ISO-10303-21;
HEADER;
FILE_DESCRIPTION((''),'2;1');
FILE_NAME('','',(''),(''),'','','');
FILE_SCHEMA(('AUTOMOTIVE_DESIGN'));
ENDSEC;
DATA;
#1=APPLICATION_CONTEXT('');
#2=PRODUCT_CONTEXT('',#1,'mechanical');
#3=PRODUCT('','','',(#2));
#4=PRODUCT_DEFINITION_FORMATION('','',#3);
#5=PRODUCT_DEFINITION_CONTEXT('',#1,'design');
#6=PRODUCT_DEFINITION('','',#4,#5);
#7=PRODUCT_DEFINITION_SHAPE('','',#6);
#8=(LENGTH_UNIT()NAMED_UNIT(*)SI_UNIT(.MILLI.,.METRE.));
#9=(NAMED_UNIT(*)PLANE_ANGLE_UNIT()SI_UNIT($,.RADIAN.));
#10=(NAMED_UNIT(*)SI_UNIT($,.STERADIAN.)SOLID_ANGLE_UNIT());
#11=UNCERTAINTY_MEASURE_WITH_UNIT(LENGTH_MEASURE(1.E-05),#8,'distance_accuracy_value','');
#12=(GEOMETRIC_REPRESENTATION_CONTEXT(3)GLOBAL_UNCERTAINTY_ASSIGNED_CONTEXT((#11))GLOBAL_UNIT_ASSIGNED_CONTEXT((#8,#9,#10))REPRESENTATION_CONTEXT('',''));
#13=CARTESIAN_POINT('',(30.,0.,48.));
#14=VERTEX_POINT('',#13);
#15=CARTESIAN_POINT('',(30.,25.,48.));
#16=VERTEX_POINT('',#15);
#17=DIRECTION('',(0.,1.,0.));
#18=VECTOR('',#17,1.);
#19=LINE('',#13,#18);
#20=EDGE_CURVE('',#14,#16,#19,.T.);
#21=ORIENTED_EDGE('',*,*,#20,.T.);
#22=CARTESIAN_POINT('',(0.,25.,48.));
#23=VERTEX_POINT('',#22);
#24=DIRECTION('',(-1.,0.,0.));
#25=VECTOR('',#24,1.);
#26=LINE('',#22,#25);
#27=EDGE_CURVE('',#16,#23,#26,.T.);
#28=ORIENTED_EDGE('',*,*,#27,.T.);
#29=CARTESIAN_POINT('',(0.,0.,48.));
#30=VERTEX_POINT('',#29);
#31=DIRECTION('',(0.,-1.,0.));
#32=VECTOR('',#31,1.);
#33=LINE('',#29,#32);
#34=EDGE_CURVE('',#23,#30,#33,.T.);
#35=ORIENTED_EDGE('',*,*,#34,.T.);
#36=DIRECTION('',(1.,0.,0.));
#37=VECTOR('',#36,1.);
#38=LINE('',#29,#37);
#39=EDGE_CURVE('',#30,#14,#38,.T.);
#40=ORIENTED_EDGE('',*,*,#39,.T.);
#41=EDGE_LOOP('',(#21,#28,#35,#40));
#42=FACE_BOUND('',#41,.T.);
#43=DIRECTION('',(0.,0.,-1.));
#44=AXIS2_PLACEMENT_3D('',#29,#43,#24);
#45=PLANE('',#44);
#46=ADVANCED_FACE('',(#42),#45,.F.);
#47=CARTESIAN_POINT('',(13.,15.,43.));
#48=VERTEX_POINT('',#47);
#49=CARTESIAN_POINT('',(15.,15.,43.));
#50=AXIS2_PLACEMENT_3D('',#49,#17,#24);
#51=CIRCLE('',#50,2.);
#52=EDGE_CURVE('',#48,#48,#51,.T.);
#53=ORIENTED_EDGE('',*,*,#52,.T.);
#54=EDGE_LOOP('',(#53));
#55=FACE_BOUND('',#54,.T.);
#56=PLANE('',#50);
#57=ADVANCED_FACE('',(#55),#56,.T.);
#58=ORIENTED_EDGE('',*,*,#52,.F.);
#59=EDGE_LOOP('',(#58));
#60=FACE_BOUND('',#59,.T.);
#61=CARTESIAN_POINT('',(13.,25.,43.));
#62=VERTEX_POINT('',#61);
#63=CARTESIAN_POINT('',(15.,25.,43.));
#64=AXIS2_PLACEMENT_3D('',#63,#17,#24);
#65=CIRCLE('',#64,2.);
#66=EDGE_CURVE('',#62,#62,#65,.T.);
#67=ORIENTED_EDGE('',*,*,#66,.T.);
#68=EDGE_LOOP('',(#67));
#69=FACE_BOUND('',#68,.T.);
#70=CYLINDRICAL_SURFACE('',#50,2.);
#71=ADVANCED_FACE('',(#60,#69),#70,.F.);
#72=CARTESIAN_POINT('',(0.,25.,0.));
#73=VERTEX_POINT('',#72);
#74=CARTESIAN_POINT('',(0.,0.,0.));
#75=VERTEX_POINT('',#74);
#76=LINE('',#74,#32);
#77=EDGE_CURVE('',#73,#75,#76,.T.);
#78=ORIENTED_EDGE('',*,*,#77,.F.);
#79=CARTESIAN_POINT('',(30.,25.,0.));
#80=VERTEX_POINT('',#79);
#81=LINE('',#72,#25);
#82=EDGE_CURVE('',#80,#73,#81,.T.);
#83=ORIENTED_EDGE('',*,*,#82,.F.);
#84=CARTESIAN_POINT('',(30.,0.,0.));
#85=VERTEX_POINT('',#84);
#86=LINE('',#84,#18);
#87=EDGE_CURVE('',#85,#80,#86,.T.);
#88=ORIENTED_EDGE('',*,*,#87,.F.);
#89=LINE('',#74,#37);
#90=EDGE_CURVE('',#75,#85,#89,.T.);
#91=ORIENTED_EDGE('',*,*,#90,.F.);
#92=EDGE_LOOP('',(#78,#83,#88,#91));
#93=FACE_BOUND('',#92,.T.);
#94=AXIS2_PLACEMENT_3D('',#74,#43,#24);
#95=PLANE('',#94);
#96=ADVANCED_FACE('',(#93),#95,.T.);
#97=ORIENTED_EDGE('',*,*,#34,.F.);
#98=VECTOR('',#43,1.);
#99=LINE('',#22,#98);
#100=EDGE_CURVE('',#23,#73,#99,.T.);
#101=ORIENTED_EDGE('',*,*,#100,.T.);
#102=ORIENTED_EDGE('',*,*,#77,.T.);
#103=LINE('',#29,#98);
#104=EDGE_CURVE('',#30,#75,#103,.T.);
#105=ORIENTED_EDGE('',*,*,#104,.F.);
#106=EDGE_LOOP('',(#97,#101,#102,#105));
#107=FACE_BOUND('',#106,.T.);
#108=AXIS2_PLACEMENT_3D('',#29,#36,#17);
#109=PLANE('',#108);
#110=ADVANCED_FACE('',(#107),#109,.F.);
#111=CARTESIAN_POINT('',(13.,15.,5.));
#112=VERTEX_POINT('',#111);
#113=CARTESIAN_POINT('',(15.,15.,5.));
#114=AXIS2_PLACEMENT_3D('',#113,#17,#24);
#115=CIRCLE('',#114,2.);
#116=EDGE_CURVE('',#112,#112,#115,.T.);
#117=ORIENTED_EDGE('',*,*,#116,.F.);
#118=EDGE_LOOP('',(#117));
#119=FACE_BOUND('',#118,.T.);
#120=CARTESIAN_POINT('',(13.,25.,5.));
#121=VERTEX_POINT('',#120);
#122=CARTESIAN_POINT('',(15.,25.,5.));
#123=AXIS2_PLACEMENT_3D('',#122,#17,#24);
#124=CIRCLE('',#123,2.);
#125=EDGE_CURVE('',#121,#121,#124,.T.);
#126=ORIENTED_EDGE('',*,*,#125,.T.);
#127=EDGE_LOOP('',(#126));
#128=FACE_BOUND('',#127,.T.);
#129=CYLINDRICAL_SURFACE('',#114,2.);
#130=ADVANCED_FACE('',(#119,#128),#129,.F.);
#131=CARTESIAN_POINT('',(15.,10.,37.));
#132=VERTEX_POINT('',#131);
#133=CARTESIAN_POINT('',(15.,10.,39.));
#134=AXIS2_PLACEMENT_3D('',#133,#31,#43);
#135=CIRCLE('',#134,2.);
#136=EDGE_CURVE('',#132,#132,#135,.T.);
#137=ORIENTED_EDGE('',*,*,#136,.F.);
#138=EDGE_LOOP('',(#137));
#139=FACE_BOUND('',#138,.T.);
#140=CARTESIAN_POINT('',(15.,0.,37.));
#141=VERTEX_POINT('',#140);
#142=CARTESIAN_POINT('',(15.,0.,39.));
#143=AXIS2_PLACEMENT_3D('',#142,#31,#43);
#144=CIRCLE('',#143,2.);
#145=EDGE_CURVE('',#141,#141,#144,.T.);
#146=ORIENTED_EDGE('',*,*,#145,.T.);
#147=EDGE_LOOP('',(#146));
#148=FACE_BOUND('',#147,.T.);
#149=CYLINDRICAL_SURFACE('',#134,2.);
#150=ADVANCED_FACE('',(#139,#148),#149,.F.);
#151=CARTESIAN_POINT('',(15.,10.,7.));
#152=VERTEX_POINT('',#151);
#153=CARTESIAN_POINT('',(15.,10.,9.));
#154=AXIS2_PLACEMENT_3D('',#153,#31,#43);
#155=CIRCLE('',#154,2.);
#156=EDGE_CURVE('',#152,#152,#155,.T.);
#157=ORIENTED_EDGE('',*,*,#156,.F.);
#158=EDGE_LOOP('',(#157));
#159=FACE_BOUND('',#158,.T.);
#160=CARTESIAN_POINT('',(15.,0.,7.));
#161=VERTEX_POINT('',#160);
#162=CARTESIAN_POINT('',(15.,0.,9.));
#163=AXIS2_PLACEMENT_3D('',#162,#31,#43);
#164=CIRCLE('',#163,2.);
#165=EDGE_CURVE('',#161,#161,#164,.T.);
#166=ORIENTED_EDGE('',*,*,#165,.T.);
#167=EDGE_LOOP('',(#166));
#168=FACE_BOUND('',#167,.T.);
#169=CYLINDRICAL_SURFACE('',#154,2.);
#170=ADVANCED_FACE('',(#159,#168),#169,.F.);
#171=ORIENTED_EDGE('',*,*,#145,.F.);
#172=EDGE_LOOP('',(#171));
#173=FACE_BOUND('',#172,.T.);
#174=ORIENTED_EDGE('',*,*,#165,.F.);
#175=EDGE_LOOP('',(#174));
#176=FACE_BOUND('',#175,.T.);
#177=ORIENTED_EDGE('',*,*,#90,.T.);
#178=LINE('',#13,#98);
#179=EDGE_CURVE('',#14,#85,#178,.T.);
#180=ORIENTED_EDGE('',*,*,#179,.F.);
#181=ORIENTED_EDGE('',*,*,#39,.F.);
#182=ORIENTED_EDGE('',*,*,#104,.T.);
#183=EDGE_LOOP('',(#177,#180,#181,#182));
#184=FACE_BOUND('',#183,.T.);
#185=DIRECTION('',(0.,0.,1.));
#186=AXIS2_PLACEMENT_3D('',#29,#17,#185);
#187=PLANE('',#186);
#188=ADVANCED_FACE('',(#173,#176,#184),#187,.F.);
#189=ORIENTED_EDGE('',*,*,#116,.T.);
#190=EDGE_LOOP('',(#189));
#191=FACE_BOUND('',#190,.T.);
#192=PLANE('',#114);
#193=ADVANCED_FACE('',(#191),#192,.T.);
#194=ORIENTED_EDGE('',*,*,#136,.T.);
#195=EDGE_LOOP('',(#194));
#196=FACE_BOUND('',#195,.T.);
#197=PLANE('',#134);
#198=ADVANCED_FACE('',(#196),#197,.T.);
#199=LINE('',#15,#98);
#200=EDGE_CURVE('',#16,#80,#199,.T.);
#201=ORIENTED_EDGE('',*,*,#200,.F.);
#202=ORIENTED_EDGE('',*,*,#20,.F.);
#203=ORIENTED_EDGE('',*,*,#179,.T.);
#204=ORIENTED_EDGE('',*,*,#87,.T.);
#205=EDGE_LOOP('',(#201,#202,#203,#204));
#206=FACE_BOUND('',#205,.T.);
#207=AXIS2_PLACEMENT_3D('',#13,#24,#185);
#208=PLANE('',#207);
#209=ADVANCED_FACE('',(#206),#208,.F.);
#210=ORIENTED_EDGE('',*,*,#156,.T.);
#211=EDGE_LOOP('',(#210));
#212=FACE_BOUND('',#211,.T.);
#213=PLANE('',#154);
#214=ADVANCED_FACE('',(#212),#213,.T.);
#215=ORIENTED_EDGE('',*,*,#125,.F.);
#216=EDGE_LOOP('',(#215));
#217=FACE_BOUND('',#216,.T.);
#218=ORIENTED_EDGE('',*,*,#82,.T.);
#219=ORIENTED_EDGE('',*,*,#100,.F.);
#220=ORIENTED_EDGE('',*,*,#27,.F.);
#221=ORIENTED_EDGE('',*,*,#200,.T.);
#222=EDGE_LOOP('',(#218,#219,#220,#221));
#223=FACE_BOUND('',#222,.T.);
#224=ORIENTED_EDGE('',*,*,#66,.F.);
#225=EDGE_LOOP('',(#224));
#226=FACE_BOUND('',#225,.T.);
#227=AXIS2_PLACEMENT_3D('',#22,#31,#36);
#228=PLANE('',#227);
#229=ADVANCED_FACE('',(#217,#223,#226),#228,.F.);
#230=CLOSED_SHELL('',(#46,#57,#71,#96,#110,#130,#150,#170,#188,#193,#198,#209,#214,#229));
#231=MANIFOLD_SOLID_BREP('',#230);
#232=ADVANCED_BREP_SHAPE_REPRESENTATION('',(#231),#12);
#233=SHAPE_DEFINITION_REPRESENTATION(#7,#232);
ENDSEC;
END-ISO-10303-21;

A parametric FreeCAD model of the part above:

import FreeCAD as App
import Part
import Sketcher
from FreeCAD import Vector

doc = App.newDocument("Part")
params = doc.addObject("Spreadsheet::Sheet", "Params")
for row, (alias, value) in enumerate([
    ("sketch1_width", "30 mm"),
    ("sketch1_height", "25 mm"),
    ("pad1_length", "48 mm"),
    ("sketch2_diameter", "4 mm"),
    ("pocket1_length", "10 mm"),
    ("sketch3_diameter", "4 mm"),
    ("pocket2_length", "10 mm"),
], start=1):
    params.set(f"A{row}", alias)
    params.set(f"B{row}", "=" + value)
    params.setAlias(f"B{row}", alias)

body = doc.addObject("PartDesign::Body", "Body")

# Sketch on XY plane
sketch1 = doc.addObject("Sketcher::SketchObject", "Sketch")
body.addObject(sketch1)
sketch1.AttachmentSupport = (doc.XY_Plane, [""])
sketch1.MapMode = "FlatFace"
sketch1.addGeometry([
    Part.LineSegment(Vector(0, 25, 0), Vector(0, 0, 0)),
    Part.LineSegment(Vector(0, 0, 0), Vector(30, 0, 0)),
    Part.LineSegment(Vector(30, 0, 0), Vector(30, 25, 0)),
    Part.LineSegment(Vector(30, 25, 0), Vector(0, 25, 0)),
], False)
sketch1.addConstraint([
    Sketcher.Constraint("Coincident", 0, 2, 1, 1),
    Sketcher.Constraint("Coincident", 1, 2, 2, 1),
    Sketcher.Constraint("Coincident", 2, 2, 3, 1),
    Sketcher.Constraint("Coincident", 3, 2, 0, 1),
    Sketcher.Constraint("Vertical", 0),
    Sketcher.Constraint("Horizontal", 1),
    Sketcher.Constraint("Vertical", 2),
    Sketcher.Constraint("Horizontal", 3),
    Sketcher.Constraint("Coincident", 0, 2, -1, 1),
    Sketcher.Constraint("DistanceX", 1, 1, 1, 2, 30.0),
    Sketcher.Constraint("DistanceY", 0, 2, 0, 1, 25.0),
])
sketch1.setExpression("Constraints[9]", "Params.sketch1_width")
sketch1.setExpression("Constraints[10]", "Params.sketch1_height")
pad1 = doc.addObject("PartDesign::Pad", "Pad")
body.addObject(pad1)
pad1.Profile = sketch1
pad1.setExpression("Length", "Params.pad1_length")

# Sketch on XZ plane
sketch2 = doc.addObject("Sketcher::SketchObject", "Sketch001")
body.addObject(sketch2)
sketch2.AttachmentSupport = (doc.XZ_Plane, [""])
sketch2.MapMode = "FlatFace"
sketch2.AttachmentOffset = App.Placement(Vector(0, 0, -25), App.Rotation())
sketch2.addGeometry([
    Part.Circle(Vector(15, 5, 0), Vector(0, 0, 1), 2),
    Part.Circle(Vector(15, 43, 0), Vector(0, 0, 1), 2),
], False)
sketch2.addConstraint([
    Sketcher.Constraint("Equal", 0, 1),
    Sketcher.Constraint("Vertical", 0, 3, 1, 3),
    Sketcher.Constraint("Diameter", 0, 4.0),
    Sketcher.Constraint("DistanceX", -1, 1, 0, 3, 15.0),
    Sketcher.Constraint("DistanceY", -1, 1, 0, 3, 5.0),
    Sketcher.Constraint("DistanceY", -1, 1, 1, 3, 43.0),
])
sketch2.setExpression("Constraints[2]", "Params.sketch2_diameter")
pocket1 = doc.addObject("PartDesign::Pocket", "Pocket")
body.addObject(pocket1)
pocket1.Profile = sketch2
pocket1.setExpression("Length", "Params.pocket1_length")
pocket1.Reversed = True

# Sketch on XZ plane
sketch3 = doc.addObject("Sketcher::SketchObject", "Sketch002")
body.addObject(sketch3)
sketch3.AttachmentSupport = (doc.XZ_Plane, [""])
sketch3.MapMode = "FlatFace"
sketch3.addGeometry([
    Part.Circle(Vector(15, 39, 0), Vector(0, 0, 1), 2),
    Part.Circle(Vector(15, 9, 0), Vector(0, 0, 1), 2),
], False)
sketch3.addConstraint([
    Sketcher.Constraint("Equal", 0, 1),
    Sketcher.Constraint("Vertical", 0, 3, 1, 3),
    Sketcher.Constraint("Diameter", 0, 4.0),
    Sketcher.Constraint("DistanceX", -1, 1, 0, 3, 15.0),
    Sketcher.Constraint("DistanceY", -1, 1, 0, 3, 39.0),
    Sketcher.Constraint("DistanceY", -1, 1, 1, 3, 9.0),
])
sketch3.setExpression("Constraints[2]", "Params.sketch3_diameter")
pocket2 = doc.addObject("PartDesign::Pocket", "Pocket001")
body.addObject(pocket2)
pocket2.Profile = sketch3
pocket2.setExpression("Length", "Params.pocket2_length")

doc.recompute()
